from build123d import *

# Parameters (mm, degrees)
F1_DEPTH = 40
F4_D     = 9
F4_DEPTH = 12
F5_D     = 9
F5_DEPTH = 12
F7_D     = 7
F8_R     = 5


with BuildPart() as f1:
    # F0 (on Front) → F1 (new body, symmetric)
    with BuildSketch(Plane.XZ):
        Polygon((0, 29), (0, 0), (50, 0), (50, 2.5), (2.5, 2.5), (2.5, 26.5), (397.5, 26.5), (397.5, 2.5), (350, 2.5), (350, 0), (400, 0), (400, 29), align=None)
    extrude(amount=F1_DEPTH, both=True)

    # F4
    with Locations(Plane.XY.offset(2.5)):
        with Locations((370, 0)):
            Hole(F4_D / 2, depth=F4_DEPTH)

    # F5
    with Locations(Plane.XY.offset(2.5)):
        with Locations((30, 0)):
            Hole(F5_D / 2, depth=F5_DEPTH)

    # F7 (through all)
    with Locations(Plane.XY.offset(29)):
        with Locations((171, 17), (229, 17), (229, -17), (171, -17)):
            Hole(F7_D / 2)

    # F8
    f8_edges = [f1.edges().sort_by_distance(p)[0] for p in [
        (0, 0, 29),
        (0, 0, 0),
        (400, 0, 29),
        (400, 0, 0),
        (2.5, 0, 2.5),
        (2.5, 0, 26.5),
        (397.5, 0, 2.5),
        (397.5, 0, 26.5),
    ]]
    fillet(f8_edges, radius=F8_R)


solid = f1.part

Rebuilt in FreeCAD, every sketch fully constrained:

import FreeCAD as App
import Part
import Sketcher


def edges_at(feature, points):
    """Names of the edges that pass closest to the given points."""
    edges = feature.Shape.Edges
    near = lambda p: min(range(len(edges)), key=lambda i: edges[i].distToShape(Part.Vertex(*p))[0])
    return sorted({f"Edge{near(p) + 1}" for p in points})


def add_polygon(sketch, points):
    """Adds a closed chain of lines whose ends are joined by coincident constraints."""
    first, n = sketch.GeometryCount, len(points)
    for a, b in zip(points, points[1:] + points[:1]):
        sketch.addGeometry(Part.LineSegment(App.Vector(*a, 0), App.Vector(*b, 0)), False)
    for i in range(n):
        sketch.addConstraint(Sketcher.Constraint("Coincident", first + i, 2, first + (i + 1) % n, 1))

doc = App.newDocument("Part")
body = doc.addObject("PartDesign::Body", "Body")

# Sketch on XZ plane
sketch1 = body.newObject("Sketcher::SketchObject", "Sketch")
sketch1.AttachmentSupport = (doc.getObject("XZ_Plane"), [""])
sketch1.MapMode = "FlatFace"
add_polygon(sketch1, [(0, 29), (0, 0), (50, 0), (50, 2.5), (2.5, 2.5), (2.5, 26.5), (397.5, 26.5), (397.5, 2.5), (350, 2.5), (350, 0), (400, 0), (400, 29)])  # lines 0-11
sketch1.addConstraint([
    Sketcher.Constraint("Vertical", 0),
    Sketcher.Constraint("Horizontal", 1),
    Sketcher.Constraint("Vertical", 2),
    Sketcher.Constraint("Horizontal", 3),
    Sketcher.Constraint("Vertical", 4),
    Sketcher.Constraint("Horizontal", 5),
    Sketcher.Constraint("Vertical", 6),
    Sketcher.Constraint("Horizontal", 7),
    Sketcher.Constraint("Vertical", 8),
    Sketcher.Constraint("Horizontal", 9),
    Sketcher.Constraint("Vertical", 10),
    Sketcher.Constraint("Horizontal", 11),
    Sketcher.Constraint("Coincident", 0, 2, -1, 1),
    Sketcher.Constraint("PointOnObject", 8, 2, -1),
    Sketcher.Constraint("Horizontal", 3, 2, 6, 2),
    Sketcher.Constraint("Equal", 3, 7),
    Sketcher.Constraint("Equal", 1, 9),
    Sketcher.Constraint("DistanceX", 1, 1, 1, 2, 50.0),
    Sketcher.Constraint("DistanceX", 5, 1, 5, 2, 395.0),
    Sketcher.Constraint("DistanceX", 11, 2, 11, 1, 400.0),
    Sketcher.Constraint("DistanceY", 0, 2, 0, 1, 29.0),
    Sketcher.Constraint("DistanceY", 4, 1, 4, 2, 24.0),
    Sketcher.Constraint("DistanceY", 2, 1, 2, 2, 2.5),
])
pad1 = body.newObject("PartDesign::Pad", "Pad")
pad1.Profile = sketch1
pad1.Length = 80
pad1.Midplane = True

# Sketch on XY plane
sketch2 = body.newObject("Sketcher::SketchObject", "Sketch001")
sketch2.AttachmentSupport = (doc.getObject("XY_Plane"), [""])
sketch2.MapMode = "FlatFace"
sketch2.AttachmentOffset = App.Placement(App.Vector(0, 0, 2.5), App.Rotation())
sketch2.addGeometry(Part.Circle(App.Vector(370, 0, 0), App.Vector(0, 0, 1), 4.5), False)
sketch2.addConstraint([
    Sketcher.Constraint("PointOnObject", 0, 3, -1),
    Sketcher.Constraint("Diameter", 0, 9.0),
    Sketcher.Constraint("DistanceX", -1, 1, 0, 3, 370.0),
])
doc.recompute()
hole = body.newObject("PartDesign::Hole", "Hole")
hole.Profile = sketch2
hole.ThreadType = "None"
hole.Diameter = 9
hole.DepthType = "Dimension"
hole.Depth = 12
hole.DrillPoint = "Flat"

# Sketch on XY plane
sketch3 = body.newObject("Sketcher::SketchObject", "Sketch002")
sketch3.AttachmentSupport = (doc.getObject("XY_Plane"), [""])
sketch3.MapMode = "FlatFace"
sketch3.AttachmentOffset = App.Placement(App.Vector(0, 0, 2.5), App.Rotation())
sketch3.addGeometry(Part.Circle(App.Vector(30, 0, 0), App.Vector(0, 0, 1), 4.5), False)
sketch3.addConstraint([
    Sketcher.Constraint("PointOnObject", 0, 3, -1),
    Sketcher.Constraint("Diameter", 0, 9.0),
    Sketcher.Constraint("DistanceX", -1, 1, 0, 3, 30.0),
])
doc.recompute()
hole2 = body.newObject("PartDesign::Hole", "Hole001")
hole2.Profile = sketch3
hole2.ThreadType = "None"
hole2.Diameter = 9
hole2.DepthType = "Dimension"
hole2.Depth = 12
hole2.DrillPoint = "Flat"

# Sketch on XY plane
sketch4 = body.newObject("Sketcher::SketchObject", "Sketch003")
sketch4.AttachmentSupport = (doc.getObject("XY_Plane"), [""])
sketch4.MapMode = "FlatFace"
sketch4.AttachmentOffset = App.Placement(App.Vector(0, 0, 29), App.Rotation())
sketch4.addGeometry([
    Part.Circle(App.Vector(171, 17, 0), App.Vector(0, 0, 1), 3.5),
    Part.Circle(App.Vector(229, 17, 0), App.Vector(0, 0, 1), 3.5),
    Part.Circle(App.Vector(229, -17, 0), App.Vector(0, 0, 1), 3.5),
    Part.Circle(App.Vector(171, -17, 0), App.Vector(0, 0, 1), 3.5),
], False)
sketch4.addConstraint([
    Sketcher.Constraint("Equal", 0, 1),
    Sketcher.Constraint("Equal", 1, 2),
    Sketcher.Constraint("Equal", 2, 3),
    Sketcher.Constraint("Symmetric", 1, 3, 2, 3, -1),
    Sketcher.Constraint("Symmetric", 0, 3, 3, 3, -1),
    Sketcher.Constraint("Horizontal", 0, 3, 1, 3),
    Sketcher.Constraint("Diameter", 0, 7.0),
    Sketcher.Constraint("DistanceX", -1, 1, 0, 3, 171.0),
    Sketcher.Constraint("DistanceY", -1, 1, 0, 3, 17.0),
    Sketcher.Constraint("DistanceX", -1, 1, 1, 3, 229.0),
])
doc.recompute()
hole3 = body.newObject("PartDesign::Hole", "Hole002")
hole3.Profile = sketch4
hole3.ThreadType = "None"
hole3.Diameter = 7
hole3.DepthType = "ThroughAll"
doc.recompute()

fillet = body.newObject("PartDesign::Fillet", "Fillet")
fillet.Base = (hole3, edges_at(hole3, [
    (0, 0, 29),
    (0, 0, 0),
    (400, 0, 29),
    (400, 0, 0),
    (2.5, 0, 2.5),
    (2.5, 0, 26.5),
    (397.5, 0, 2.5),
    (397.5, 0, 26.5),
]))
fillet.Radius = 5

doc.recompute()
